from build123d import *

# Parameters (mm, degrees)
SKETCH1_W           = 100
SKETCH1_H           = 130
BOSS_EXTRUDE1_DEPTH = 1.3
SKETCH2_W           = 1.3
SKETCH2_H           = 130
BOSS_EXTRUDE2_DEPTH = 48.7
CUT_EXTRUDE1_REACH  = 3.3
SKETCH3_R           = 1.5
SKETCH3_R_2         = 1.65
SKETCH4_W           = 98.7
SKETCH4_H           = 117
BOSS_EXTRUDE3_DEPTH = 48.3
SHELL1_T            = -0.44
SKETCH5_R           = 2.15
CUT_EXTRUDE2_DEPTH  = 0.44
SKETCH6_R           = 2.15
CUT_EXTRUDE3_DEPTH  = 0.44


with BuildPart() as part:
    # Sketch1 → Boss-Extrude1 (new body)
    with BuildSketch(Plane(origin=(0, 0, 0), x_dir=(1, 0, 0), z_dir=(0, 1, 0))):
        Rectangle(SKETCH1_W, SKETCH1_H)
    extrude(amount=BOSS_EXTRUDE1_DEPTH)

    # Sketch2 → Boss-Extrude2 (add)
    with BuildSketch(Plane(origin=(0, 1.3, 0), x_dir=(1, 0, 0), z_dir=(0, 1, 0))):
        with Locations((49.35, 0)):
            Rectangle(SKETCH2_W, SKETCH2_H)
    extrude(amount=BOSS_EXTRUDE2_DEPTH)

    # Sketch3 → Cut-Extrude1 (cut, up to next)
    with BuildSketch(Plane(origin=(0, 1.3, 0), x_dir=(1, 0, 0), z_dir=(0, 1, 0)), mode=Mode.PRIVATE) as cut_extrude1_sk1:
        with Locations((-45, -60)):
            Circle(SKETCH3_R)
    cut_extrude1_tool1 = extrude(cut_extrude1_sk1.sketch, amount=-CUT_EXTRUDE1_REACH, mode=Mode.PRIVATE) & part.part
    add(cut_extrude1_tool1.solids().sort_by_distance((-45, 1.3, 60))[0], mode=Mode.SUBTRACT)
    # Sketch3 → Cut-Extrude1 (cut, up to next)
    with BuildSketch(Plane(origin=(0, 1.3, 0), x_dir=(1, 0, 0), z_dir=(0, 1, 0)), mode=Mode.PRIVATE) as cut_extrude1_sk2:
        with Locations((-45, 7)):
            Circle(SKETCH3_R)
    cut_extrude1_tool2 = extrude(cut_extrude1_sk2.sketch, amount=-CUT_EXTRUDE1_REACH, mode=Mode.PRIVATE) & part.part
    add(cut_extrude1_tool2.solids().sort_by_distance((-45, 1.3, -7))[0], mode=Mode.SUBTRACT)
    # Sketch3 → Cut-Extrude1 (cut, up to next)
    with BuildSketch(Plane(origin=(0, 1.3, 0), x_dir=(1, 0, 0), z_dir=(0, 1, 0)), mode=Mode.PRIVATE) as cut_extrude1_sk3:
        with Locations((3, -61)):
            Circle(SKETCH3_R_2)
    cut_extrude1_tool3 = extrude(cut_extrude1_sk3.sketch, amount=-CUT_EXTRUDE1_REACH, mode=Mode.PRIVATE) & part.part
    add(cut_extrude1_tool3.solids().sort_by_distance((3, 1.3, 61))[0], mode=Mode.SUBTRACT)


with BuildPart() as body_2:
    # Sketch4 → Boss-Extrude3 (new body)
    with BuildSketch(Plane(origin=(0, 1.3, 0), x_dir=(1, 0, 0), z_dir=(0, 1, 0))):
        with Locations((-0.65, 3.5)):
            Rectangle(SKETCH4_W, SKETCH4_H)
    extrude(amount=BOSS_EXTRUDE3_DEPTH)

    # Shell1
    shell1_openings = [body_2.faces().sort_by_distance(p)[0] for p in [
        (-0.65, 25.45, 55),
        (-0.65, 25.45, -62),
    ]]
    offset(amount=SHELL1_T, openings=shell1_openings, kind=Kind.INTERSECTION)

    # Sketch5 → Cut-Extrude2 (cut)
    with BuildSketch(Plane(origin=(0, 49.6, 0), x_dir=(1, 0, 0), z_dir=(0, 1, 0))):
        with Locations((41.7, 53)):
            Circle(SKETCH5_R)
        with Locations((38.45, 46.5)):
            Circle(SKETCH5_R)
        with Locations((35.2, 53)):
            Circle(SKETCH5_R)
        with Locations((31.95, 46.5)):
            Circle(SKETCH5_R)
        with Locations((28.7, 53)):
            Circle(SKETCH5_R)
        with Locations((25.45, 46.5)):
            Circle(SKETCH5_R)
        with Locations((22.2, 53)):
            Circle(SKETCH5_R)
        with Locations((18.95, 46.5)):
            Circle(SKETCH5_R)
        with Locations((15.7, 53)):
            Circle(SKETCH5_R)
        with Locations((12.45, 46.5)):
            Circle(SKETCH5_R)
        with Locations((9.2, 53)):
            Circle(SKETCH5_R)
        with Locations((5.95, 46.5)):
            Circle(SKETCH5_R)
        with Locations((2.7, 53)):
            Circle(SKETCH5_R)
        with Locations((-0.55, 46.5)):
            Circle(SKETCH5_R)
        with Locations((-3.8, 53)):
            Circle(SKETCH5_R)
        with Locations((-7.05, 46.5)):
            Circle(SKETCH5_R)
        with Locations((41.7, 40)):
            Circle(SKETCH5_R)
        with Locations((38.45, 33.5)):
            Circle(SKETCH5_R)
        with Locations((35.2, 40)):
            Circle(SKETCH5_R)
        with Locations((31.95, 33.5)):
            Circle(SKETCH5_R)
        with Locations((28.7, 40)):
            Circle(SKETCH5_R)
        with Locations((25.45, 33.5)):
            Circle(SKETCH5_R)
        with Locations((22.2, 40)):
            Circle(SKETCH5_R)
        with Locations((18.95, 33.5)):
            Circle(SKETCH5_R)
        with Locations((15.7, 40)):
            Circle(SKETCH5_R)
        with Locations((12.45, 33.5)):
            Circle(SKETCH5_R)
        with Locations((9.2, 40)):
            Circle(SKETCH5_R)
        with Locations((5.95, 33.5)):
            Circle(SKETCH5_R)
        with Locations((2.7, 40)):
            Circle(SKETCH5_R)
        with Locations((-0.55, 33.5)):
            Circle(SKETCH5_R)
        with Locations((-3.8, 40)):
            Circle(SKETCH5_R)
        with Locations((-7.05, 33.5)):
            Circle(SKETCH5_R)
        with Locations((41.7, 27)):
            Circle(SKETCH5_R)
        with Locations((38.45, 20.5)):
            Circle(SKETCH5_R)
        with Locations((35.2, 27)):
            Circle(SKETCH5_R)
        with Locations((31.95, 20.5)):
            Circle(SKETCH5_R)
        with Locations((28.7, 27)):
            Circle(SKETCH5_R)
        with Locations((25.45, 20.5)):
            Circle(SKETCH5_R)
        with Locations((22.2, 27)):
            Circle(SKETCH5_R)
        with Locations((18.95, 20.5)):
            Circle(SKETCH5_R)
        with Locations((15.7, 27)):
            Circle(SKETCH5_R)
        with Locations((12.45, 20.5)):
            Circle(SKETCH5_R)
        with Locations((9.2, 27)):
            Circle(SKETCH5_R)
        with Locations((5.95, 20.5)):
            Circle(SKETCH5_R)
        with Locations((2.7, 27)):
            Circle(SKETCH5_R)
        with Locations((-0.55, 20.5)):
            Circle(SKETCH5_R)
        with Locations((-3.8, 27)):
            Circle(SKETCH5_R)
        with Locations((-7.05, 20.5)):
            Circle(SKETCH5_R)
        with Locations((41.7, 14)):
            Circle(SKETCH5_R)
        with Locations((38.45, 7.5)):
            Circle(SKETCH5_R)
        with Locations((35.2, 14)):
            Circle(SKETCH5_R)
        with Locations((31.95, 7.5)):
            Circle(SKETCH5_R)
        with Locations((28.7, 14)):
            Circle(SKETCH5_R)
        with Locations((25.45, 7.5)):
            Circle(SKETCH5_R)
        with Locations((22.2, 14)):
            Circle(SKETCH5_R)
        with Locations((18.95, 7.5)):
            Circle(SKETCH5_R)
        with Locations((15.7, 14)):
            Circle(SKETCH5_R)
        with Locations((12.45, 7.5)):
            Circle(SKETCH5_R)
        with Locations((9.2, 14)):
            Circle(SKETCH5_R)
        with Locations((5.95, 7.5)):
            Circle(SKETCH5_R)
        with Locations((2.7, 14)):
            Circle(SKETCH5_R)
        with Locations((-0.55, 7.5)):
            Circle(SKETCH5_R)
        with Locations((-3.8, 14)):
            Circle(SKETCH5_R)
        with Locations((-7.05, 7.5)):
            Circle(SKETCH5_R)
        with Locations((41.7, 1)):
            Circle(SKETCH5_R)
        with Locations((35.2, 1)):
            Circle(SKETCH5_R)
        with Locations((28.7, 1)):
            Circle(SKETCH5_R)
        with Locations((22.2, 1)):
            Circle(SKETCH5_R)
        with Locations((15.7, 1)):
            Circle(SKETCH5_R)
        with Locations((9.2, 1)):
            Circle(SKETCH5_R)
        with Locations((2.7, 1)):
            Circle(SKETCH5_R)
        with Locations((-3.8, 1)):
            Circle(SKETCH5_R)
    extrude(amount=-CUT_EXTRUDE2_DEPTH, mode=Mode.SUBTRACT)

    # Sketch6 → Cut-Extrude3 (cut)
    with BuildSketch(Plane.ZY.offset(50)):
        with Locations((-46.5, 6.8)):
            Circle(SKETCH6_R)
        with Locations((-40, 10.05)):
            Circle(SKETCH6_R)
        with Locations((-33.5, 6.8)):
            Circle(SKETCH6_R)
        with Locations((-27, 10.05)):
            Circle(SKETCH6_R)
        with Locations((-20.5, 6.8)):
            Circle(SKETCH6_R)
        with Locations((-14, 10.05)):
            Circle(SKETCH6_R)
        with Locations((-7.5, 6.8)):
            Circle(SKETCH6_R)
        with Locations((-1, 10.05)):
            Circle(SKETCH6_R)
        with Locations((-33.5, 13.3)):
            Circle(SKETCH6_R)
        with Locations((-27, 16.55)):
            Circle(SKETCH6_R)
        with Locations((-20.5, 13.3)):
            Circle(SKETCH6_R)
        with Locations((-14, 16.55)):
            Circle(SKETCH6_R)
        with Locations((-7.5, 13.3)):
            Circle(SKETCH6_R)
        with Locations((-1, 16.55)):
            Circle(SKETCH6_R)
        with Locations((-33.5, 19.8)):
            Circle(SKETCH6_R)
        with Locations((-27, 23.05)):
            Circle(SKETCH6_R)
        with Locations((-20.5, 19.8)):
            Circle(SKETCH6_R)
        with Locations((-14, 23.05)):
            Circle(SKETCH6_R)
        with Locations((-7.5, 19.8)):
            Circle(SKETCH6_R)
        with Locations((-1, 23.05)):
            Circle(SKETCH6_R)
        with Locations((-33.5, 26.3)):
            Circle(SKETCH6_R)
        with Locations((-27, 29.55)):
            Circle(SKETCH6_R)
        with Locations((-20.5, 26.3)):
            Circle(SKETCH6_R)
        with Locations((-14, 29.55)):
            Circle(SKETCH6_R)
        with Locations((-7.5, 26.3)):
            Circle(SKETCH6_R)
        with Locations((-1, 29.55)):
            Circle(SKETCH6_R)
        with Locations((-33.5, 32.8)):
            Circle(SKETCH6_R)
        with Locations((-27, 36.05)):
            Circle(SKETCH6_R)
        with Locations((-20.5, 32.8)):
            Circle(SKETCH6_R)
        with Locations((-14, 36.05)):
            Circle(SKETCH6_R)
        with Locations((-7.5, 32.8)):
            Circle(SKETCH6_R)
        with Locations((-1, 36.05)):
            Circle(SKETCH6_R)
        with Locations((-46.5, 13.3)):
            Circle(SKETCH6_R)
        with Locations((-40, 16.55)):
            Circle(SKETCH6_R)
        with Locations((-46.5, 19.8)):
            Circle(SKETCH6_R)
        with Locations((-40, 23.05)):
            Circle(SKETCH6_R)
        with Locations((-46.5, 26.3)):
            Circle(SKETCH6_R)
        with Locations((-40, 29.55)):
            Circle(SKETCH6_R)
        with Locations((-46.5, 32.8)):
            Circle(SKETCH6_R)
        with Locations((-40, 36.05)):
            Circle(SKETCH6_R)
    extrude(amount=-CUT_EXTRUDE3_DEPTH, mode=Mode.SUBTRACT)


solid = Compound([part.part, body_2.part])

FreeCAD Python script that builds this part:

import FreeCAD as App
import Part
import Sketcher
from FreeCAD import Vector
Q = App.Units.Quantity


def faces_at(feature, points):
    """Names of the faces that lie closest to the given points."""
    faces = feature.Shape.Faces
    near = lambda p: min(range(len(faces)), key=lambda i: faces[i].distToShape(Part.Vertex(*p))[0])
    return sorted({f"Face{near(p) + 1}" for p in points})


def add_polygon(sketch, points):
    """Adds a closed chain of lines whose ends are joined by coincident constraints."""
    first, n = sketch.GeometryCount, len(points)
    for a, b in zip(points, points[1:] + points[:1]):
        sketch.addGeometry(Part.LineSegment(App.Vector(*a, 0), App.Vector(*b, 0)), False)
    for i in range(n):
        sketch.addConstraint(Sketcher.Constraint("Coincident", first + i, 2, first + (i + 1) % n, 1))

doc = App.newDocument("Part")
body = doc.addObject("PartDesign::Body", "Body")

# Sketch on XZ plane
sketch1 = body.newObject("Sketcher::SketchObject", "Sketch")
sketch1.AttachmentSupport = (doc.getObject("XZ_Plane"), [""])
sketch1.MapMode = "FlatFace"
add_polygon(sketch1, [(-50, -65), (-50, 65), (50, 65), (50, -65)])  # lines 0-3
sketch1.addConstraint(Sketcher.Constraint("Vertical", 0))
sketch1.addConstraint(Sketcher.Constraint("Horizontal", 1))
sketch1.addConstraint(Sketcher.Constraint("Vertical", 2))
sketch1.addConstraint(Sketcher.Constraint("Horizontal", 3))
sketch1.addConstraint(Sketcher.Constraint("Symmetric", 0, 2, 2, 2, -1, 1))
sketch1.addConstraint(Sketcher.Constraint("DistanceX", 1, 1, 1, 2, Q("100 mm")))
sketch1.addConstraint(Sketcher.Constraint("DistanceY", 0, 1, 0, 2, Q("130 mm")))
pad1 = body.newObject("PartDesign::Pad", "Pad")
pad1.Profile = sketch1
pad1.Length = 1.3
pad1.Reversed = True

# Sketch on XZ plane
sketch2 = body.newObject("Sketcher::SketchObject", "Sketch001")
sketch2.AttachmentSupport = (doc.getObject("XZ_Plane"), [""])
sketch2.MapMode = "FlatFace"
sketch2.AttachmentOffset = App.Placement(Vector(0, 0, -1.3), App.Rotation())
add_polygon(sketch2, [(48.7, -65), (48.7, 65), (50, 65), (50, -65)])  # lines 0-3
sketch2.addConstraint(Sketcher.Constraint("Vertical", 0))
sketch2.addConstraint(Sketcher.Constraint("Horizontal", 1))
sketch2.addConstraint(Sketcher.Constraint("Vertical", 2))
sketch2.addConstraint(Sketcher.Constraint("Horizontal", 3))
sketch2.addConstraint(Sketcher.Constraint("DistanceY", 0, 1, 0, 2, Q("130 mm")))
sketch2.addConstraint(Sketcher.Constraint("DistanceX", 1, 1, 1, 2, Q("1.3 mm")))
sketch2.addConstraint(Sketcher.Constraint("DistanceY", -1, 1, 0, 2, Q("65 mm")))
sketch2.addConstraint(Sketcher.Constraint("DistanceX", -1, 1, 1, 2, Q("50 mm")))
pad2 = body.newObject("PartDesign::Pad", "Pad001")
pad2.Profile = sketch2
pad2.Length = 48.7
pad2.Reversed = True

# Sketch on XZ plane
sketch3 = body.newObject("Sketcher::SketchObject", "Sketch002")
sketch3.AttachmentSupport = (doc.getObject("XZ_Plane"), [""])
sketch3.MapMode = "FlatFace"
sketch3.AttachmentOffset = App.Placement(Vector(0, 0, -1.3), App.Rotation())
sketch3.addGeometry(Part.Circle(Vector(-45, 60, 0), Vector(0, 0, 1), 1.5), False)
sketch3.addConstraint(Sketcher.Constraint("Diameter", 0, Q("3 mm")))
sketch3.addConstraint(Sketcher.Constraint("DistanceX", 0, 3, -1, 1, Q("45 mm")))
sketch3.addConstraint(Sketcher.Constraint("DistanceY", -1, 1, 0, 3, Q("60 mm")))
pocket1 = body.newObject("PartDesign::Pocket", "Pocket")
pocket1.Profile = sketch3
pocket1.Type = "UpToFirst"
pocket1.Reversed = True

# Sketch on XZ plane
sketch4 = body.newObject("Sketcher::SketchObject", "Sketch003")
sketch4.AttachmentSupport = (doc.getObject("XZ_Plane"), [""])
sketch4.MapMode = "FlatFace"
sketch4.AttachmentOffset = App.Placement(Vector(0, 0, -1.3), App.Rotation())
sketch4.addGeometry(Part.Circle(Vector(-45, -7, 0), Vector(0, 0, 1), 1.5), False)
sketch4.addConstraint(Sketcher.Constraint("Diameter", 0, Q("3 mm")))
sketch4.addConstraint(Sketcher.Constraint("DistanceX", 0, 3, -1, 1, Q("45 mm")))
sketch4.addConstraint(Sketcher.Constraint("DistanceY", 0, 3, -1, 1, Q("7 mm")))
pocket2 = body.newObject("PartDesign::Pocket", "Pocket001")
pocket2.Profile = sketch4
pocket2.Type = "UpToFirst"
pocket2.Reversed = True

# Sketch on XZ plane
sketch5 = body.newObject("Sketcher::SketchObject", "Sketch004")
sketch5.AttachmentSupport = (doc.getObject("XZ_Plane"), [""])
sketch5.MapMode = "FlatFace"
sketch5.AttachmentOffset = App.Placement(Vector(0, 0, -1.3), App.Rotation())
sketch5.addGeometry(Part.Circle(Vector(3, 61, 0), Vector(0, 0, 1), 1.65), False)
sketch5.addConstraint(Sketcher.Constraint("Diameter", 0, Q("3.3 mm")))
sketch5.addConstraint(Sketcher.Constraint("DistanceX", -1, 1, 0, 3, Q("3 mm")))
sketch5.addConstraint(Sketcher.Constraint("DistanceY", -1, 1, 0, 3, Q("61 mm")))
pocket3 = body.newObject("PartDesign::Pocket", "Pocket002")
pocket3.Profile = sketch5
pocket3.Type = "UpToFirst"
pocket3.Reversed = True
body2 = doc.addObject("PartDesign::Body", "Body001")

# Sketch on XZ plane
sketch6 = body2.newObject("Sketcher::SketchObject", "Sketch005")
sketch6.AttachmentSupport = (doc.getObject("XZ_Plane001"), [""])
sketch6.MapMode = "FlatFace"
sketch6.AttachmentOffset = App.Placement(Vector(0, 0, -1.3), App.Rotation())
add_polygon(sketch6, [(-50, -62), (-50, 55), (48.7, 55), (48.7, -62)])  # lines 0-3
sketch6.addConstraint(Sketcher.Constraint("Vertical", 0))
sketch6.addConstraint(Sketcher.Constraint("Horizontal", 1))
sketch6.addConstraint(Sketcher.Constraint("Vertical", 2))
sketch6.addConstraint(Sketcher.Constraint("Horizontal", 3))
sketch6.addConstraint(Sketcher.Constraint("DistanceY", 0, 1, 0, 2, Q("117 mm")))
sketch6.addConstraint(Sketcher.Constraint("DistanceX", 1, 1, 1, 2, Q("98.7 mm")))
sketch6.addConstraint(Sketcher.Constraint("DistanceX", 0, 2, -1, 1, Q("50 mm")))
sketch6.addConstraint(Sketcher.Constraint("DistanceY", -1, 1, 0, 2, Q("55 mm")))
pad3 = body2.newObject("PartDesign::Pad", "Pad002")
pad3.Profile = sketch6
pad3.Length = 48.3
pad3.Reversed = True
doc.recompute()

thickness = body2.newObject("PartDesign::Thickness", "Thickness")
thickness.Base = (pad3, faces_at(pad3, [(-0.65, 25.45, 55), (-0.65, 25.45, -62)]))
thickness.Value = 0.44
thickness.Reversed = True
thickness.Join = "Intersection"

# Sketch on XZ plane
sketch7 = body2.newObject("Sketcher::SketchObject", "Sketch006")
sketch7.AttachmentSupport = (doc.getObject("XZ_Plane001"), [""])
sketch7.MapMode = "FlatFace"
sketch7.AttachmentOffset = App.Placement(Vector(0, 0, -49.6), App.Rotation())
sketch7.addGeometry(Part.Circle(Vector(41.7, -53, 0), Vector(0, 0, 1), 2.15), False)
sketch7.addGeometry(Part.Circle(Vector(38.45, -46.5, 0), Vector(0, 0, 1), 2.15), False)
sketch7.addGeometry(Part.Circle(Vector(35.2, -53, 0), Vector(0, 0, 1), 2.15), False)
sketch7.addGeometry(Part.Circle(Vector(31.95, -46.5, 0), Vector(0, 0, 1), 2.15), False)
sketch7.addGeometry(Part.Circle(Vector(28.7, -53, 0), Vector(0, 0, 1), 2.15), False)
sketch7.addGeometry(Part.Circle(Vector(25.45, -46.5, 0), Vector(0, 0, 1), 2.15), False)
sketch7.addGeometry(Part.Circle(Vector(22.2, -53, 0), Vector(0, 0, 1), 2.15), False)
sketch7.addGeometry(Part.Circle(Vector(18.95, -46.5, 0), Vector(0, 0, 1), 2.15), False)
sketch7.addGeometry(Part.Circle(Vector(15.7, -53, 0), Vector(0, 0, 1), 2.15), False)
sketch7.addGeometry(Part.Circle(Vector(12.45, -46.5, 0), Vector(0, 0, 1), 2.15), False)
sketch7.addGeometry(Part.Circle(Vector(9.2, -53, 0), Vector(0, 0, 1), 2.15), False)
sketch7.addGeometry(Part.Circle(Vector(5.95, -46.5, 0), Vector(0, 0, 1), 2.15), False)
sketch7.addGeometry(Part.Circle(Vector(2.7, -53, 0), Vector(0, 0, 1), 2.15), False)
sketch7.addGeometry(Part.Circle(Vector(-0.55, -46.5, 0), Vector(0, 0, 1), 2.15), False)
sketch7.addGeometry(Part.Circle(Vector(-3.8, -53, 0), Vector(0, 0, 1), 2.15), False)
sketch7.addGeometry(Part.Circle(Vector(-7.05, -46.5, 0), Vector(0, 0, 1), 2.15), False)
sketch7.addGeometry(Part.Circle(Vector(41.7, -40, 0), Vector(0, 0, 1), 2.15), False)
sketch7.addGeometry(Part.Circle(Vector(38.45, -33.5, 0), Vector(0, 0, 1), 2.15), False)
sketch7.addGeometry(Part.Circle(Vector(35.2, -40, 0), Vector(0, 0, 1), 2.15), False)
sketch7.addGeometry(Part.Circle(Vector(31.95, -33.5, 0), Vector(0, 0, 1), 2.15), False)
sketch7.addGeometry(Part.Circle(Vector(28.7, -40, 0), Vector(0, 0, 1), 2.15), False)
sketch7.addGeometry(Part.Circle(Vector(25.45, -33.5, 0), Vector(0, 0, 1), 2.15), False)
sketch7.addGeometry(Part.Circle(Vector(22.2, -40, 0), Vector(0, 0, 1), 2.15), False)
sketch7.addGeometry(Part.Circle(Vector(18.95, -33.5, 0), Vector(0, 0, 1), 2.15), False)
sketch7.addGeometry(Part.Circle(Vector(15.7, -40, 0), Vector(0, 0, 1), 2.15), False)
sketch7.addGeometry(Part.Circle(Vector(12.45, -33.5, 0), Vector(0, 0, 1), 2.15), False)
sketch7.addGeometry(Part.Circle(Vector(9.2, -40, 0), Vector(0, 0, 1), 2.15), False)
sketch7.addGeometry(Part.Circle(Vector(5.95, -33.5, 0), Vector(0, 0, 1), 2.15), False)
sketch7.addGeometry(Part.Circle(Vector(2.7, -40, 0), Vector(0, 0, 1), 2.15), False)
sketch7.addGeometry(Part.Circle(Vector(-0.55, -33.5, 0), Vector(0, 0, 1), 2.15), False)
sketch7.addGeometry(Part.Circle(Vector(-3.8, -40, 0), Vector(0, 0, 1), 2.15), False)
sketch7.addGeometry(Part.Circle(Vector(-7.05, -33.5, 0), Vector(0, 0, 1), 2.15), False)
sketch7.addGeometry(Part.Circle(Vector(41.7, -27, 0), Vector(0, 0, 1), 2.15), False)
sketch7.addGeometry(Part.Circle(Vector(38.45, -20.5, 0), Vector(0, 0, 1), 2.15), False)
sketch7.addGeometry(Part.Circle(Vector(35.2, -27, 0), Vector(0, 0, 1), 2.15), False)
sketch7.addGeometry(Part.Circle(Vector(31.95, -20.5, 0), Vector(0, 0, 1), 2.15), False)
sketch7.addGeometry(Part.Circle(Vector(28.7, -27, 0), Vector(0, 0, 1), 2.15), False)
sketch7.addGeometry(Part.Circle(Vector(25.45, -20.5, 0), Vector(0, 0, 1), 2.15), False)
sketch7.addGeometry(Part.Circle(Vector(22.2, -27, 0), Vector(0, 0, 1), 2.15), False)
sketch7.addGeometry(Part.Circle(Vector(18.95, -20.5, 0), Vector(0, 0, 1), 2.15), False)
sketch7.addGeometry(Part.Circle(Vector(15.7, -27, 0), Vector(0, 0, 1), 2.15), False)
sketch7.addGeometry(Part.Circle(Vector(12.45, -20.5, 0), Vector(0, 0, 1), 2.15), False)
sketch7.addGeometry(Part.Circle(Vector(9.2, -27, 0), Vector(0, 0, 1), 2.15), False)
sketch7.addGeometry(Part.Circle(Vector(5.95, -20.5, 0), Vector(0, 0, 1), 2.15), False)
sketch7.addGeometry(Part.Circle(Vector(2.7, -27, 0), Vector(0, 0, 1), 2.15), False)
sketch7.addGeometry(Part.Circle(Vector(-0.55, -20.5, 0), Vector(0, 0, 1), 2.15), False)
sketch7.addGeometry(Part.Circle(Vector(-3.8, -27, 0), Vector(0, 0, 1), 2.15), False)
sketch7.addGeometry(Part.Circle(Vector(-7.05, -20.5, 0), Vector(0, 0, 1), 2.15), False)
sketch7.addGeometry(Part.Circle(Vector(41.7, -14, 0), Vector(0, 0, 1), 2.15), False)
sketch7.addGeometry(Part.Circle(Vector(38.45, -7.5, 0), Vector(0, 0, 1), 2.15), False)
sketch7.addGeometry(Part.Circle(Vector(35.2, -14, 0), Vector(0, 0, 1), 2.15), False)
sketch7.addGeometry(Part.Circle(Vector(31.95, -7.5, 0), Vector(0, 0, 1), 2.15), False)
sketch7.addGeometry(Part.Circle(Vector(28.7, -14, 0), Vector(0, 0, 1), 2.15), False)
sketch7.addGeometry(Part.Circle(Vector(25.45, -7.5, 0), Vector(0, 0, 1), 2.15), False)
sketch7.addGeometry(Part.Circle(Vector(22.2, -14, 0), Vector(0, 0, 1), 2.15), False)
sketch7.addGeometry(Part.Circle(Vector(18.95, -7.5, 0), Vector(0, 0, 1), 2.15), False)
sketch7.addGeometry(Part.Circle(Vector(15.7, -14, 0), Vector(0, 0, 1), 2.15), False)
sketch7.addGeometry(Part.Circle(Vector(12.45, -7.5, 0), Vector(0, 0, 1), 2.15), False)
sketch7.addGeometry(Part.Circle(Vector(9.2, -14, 0), Vector(0, 0, 1), 2.15), False)
sketch7.addGeometry(Part.Circle(Vector(5.95, -7.5, 0), Vector(0, 0, 1), 2.15), False)
sketch7.addGeometry(Part.Circle(Vector(2.7, -14, 0), Vector(0, 0, 1), 2.15), False)
sketch7.addGeometry(Part.Circle(Vector(-0.55, -7.5, 0), Vector(0, 0, 1), 2.15), False)
sketch7.addGeometry(Part.Circle(Vector(-3.8, -14, 0), Vector(0, 0, 1), 2.15), False)
sketch7.addGeometry(Part.Circle(Vector(-7.05, -7.5, 0), Vector(0, 0, 1), 2.15), False)
sketch7.addGeometry(Part.Circle(Vector(41.7, -1, 0), Vector(0, 0, 1), 2.15), False)
sketch7.addGeometry(Part.Circle(Vector(35.2, -1, 0), Vector(0, 0, 1), 2.15), False)
sketch7.addGeometry(Part.Circle(Vector(28.7, -1, 0), Vector(0, 0, 1), 2.15), False)
sketch7.addGeometry(Part.Circle(Vector(22.2, -1, 0), Vector(0, 0, 1), 2.15), False)
sketch7.addGeometry(Part.Circle(Vector(15.7, -1, 0), Vector(0, 0, 1), 2.15), False)
sketch7.addGeometry(Part.Circle(Vector(9.2, -1, 0), Vector(0, 0, 1), 2.15), False)
sketch7.addGeometry(Part.Circle(Vector(2.7, -1, 0), Vector(0, 0, 1), 2.15), False)
sketch7.addGeometry(Part.Circle(Vector(-3.8, -1, 0), Vector(0, 0, 1), 2.15), False)
sketch7.addConstraint(Sketcher.Constraint("Equal", 0, 1))
sketch7.addConstraint(Sketcher.Constraint("Equal", 1, 2))
sketch7.addConstraint(Sketcher.Constraint("Equal", 2, 3))
sketch7.addConstraint(Sketcher.Constraint("Equal", 3, 4))
sketch7.addConstraint(Sketcher.Constraint("Equal", 4, 5))
sketch7.addConstraint(Sketcher.Constraint("Equal", 5, 6))
sketch7.addConstraint(Sketcher.Constraint("Equal", 6, 7))
sketch7.addConstraint(Sketcher.Constraint("Equal", 7, 8))
sketch7.addConstraint(Sketcher.Constraint("Equal", 8, 9))
sketch7.addConstraint(Sketcher.Constraint("Equal", 9, 10))
sketch7.addConstraint(Sketcher.Constraint("Equal", 10, 11))
sketch7.addConstraint(Sketcher.Constraint("Equal", 11, 12))
sketch7.addConstraint(Sketcher.Constraint("Equal", 12, 13))
sketch7.addConstraint(Sketcher.Constraint("Equal", 13, 14))
sketch7.addConstraint(Sketcher.Constraint("Equal", 14, 15))
sketch7.addConstraint(Sketcher.Constraint("Equal", 15, 16))
sketch7.addConstraint(Sketcher.Constraint("Equal", 16, 17))
sketch7.addConstraint(Sketcher.Constraint("Equal", 17, 18))
sketch7.addConstraint(Sketcher.Constraint("Equal", 18, 19))
sketch7.addConstraint(Sketcher.Constraint("Equal", 19, 20))
sketch7.addConstraint(Sketcher.Constraint("Equal", 20, 21))
sketch7.addConstraint(Sketcher.Constraint("Equal", 21, 22))
sketch7.addConstraint(Sketcher.Constraint("Equal", 22, 23))
sketch7.addConstraint(Sketcher.Constraint("Equal", 23, 24))
sketch7.addConstraint(Sketcher.Constraint("Equal", 24, 25))
sketch7.addConstraint(Sketcher.Constraint("Equal", 25, 26))
sketch7.addConstraint(Sketcher.Constraint("Equal", 26, 27))
sketch7.addConstraint(Sketcher.Constraint("Equal", 27, 28))
sketch7.addConstraint(Sketcher.Constraint("Equal", 28, 29))
sketch7.addConstraint(Sketcher.Constraint("Equal", 29, 30))
sketch7.addConstraint(Sketcher.Constraint("Equal", 30, 31))
sketch7.addConstraint(Sketcher.Constraint("Equal", 31, 32))
sketch7.addConstraint(Sketcher.Constraint("Equal", 32, 33))
sketch7.addConstraint(Sketcher.Constraint("Equal", 33, 34))
sketch7.addConstraint(Sketcher.Constraint("Equal", 34, 35))
sketch7.addConstraint(Sketcher.Constraint("Equal", 35, 36))
sketch7.addConstraint(Sketcher.Constraint("Equal", 36, 37))
sketch7.addConstraint(Sketcher.Constraint("Equal", 37, 38))
sketch7.addConstraint(Sketcher.Constraint("Equal", 38, 39))
sketch7.addConstraint(Sketcher.Constraint("Equal", 39, 40))
sketch7.addConstraint(Sketcher.Constraint("Equal", 40, 41))
sketch7.addConstraint(Sketcher.Constraint("Equal", 41, 42))
sketch7.addConstraint(Sketcher.Constraint("Equal", 42, 43))
sketch7.addConstraint(Sketcher.Constraint("Equal", 43, 44))
sketch7.addConstraint(Sketcher.Constraint("Equal", 44, 45))
sketch7.addConstraint(Sketcher.Constraint("Equal", 45, 46))
sketch7.addConstraint(Sketcher.Constraint("Equal", 46, 47))
sketch7.addConstraint(Sketcher.Constraint("Equal", 47, 48))
sketch7.addConstraint(Sketcher.Constraint("Equal", 48, 49))
sketch7.addConstraint(Sketcher.Constraint("Equal", 49, 50))
sketch7.addConstraint(Sketcher.Constraint("Equal", 50, 51))
sketch7.addConstraint(Sketcher.Constraint("Equal", 51, 52))
sketch7.addConstraint(Sketcher.Constraint("Equal", 52, 53))
sketch7.addConstraint(Sketcher.Constraint("Equal", 53, 54))
sketch7.addConstraint(Sketcher.Constraint("Equal", 54, 55))
sketch7.addConstraint(Sketcher.Constraint("Equal", 55, 56))
sketch7.addConstraint(Sketcher.Constraint("Equal", 56, 57))
sketch7.addConstraint(Sketcher.Constraint("Equal", 57, 58))
sketch7.addConstraint(Sketcher.Constraint("Equal", 58, 59))
sketch7.addConstraint(Sketcher.Constraint("Equal", 59, 60))
sketch7.addConstraint(Sketcher.Constraint("Equal", 60, 61))
sketch7.addConstraint(Sketcher.Constraint("Equal", 61, 62))
sketch7.addConstraint(Sketcher.Constraint("Equal", 62, 63))
sketch7.addConstraint(Sketcher.Constraint("Equal", 63, 64))
sketch7.addConstraint(Sketcher.Constraint("Equal", 64, 65))
sketch7.addConstraint(Sketcher.Constraint("Equal", 65, 66))
sketch7.addConstraint(Sketcher.Constraint("Equal", 66, 67))
sketch7.addConstraint(Sketcher.Constraint("Equal", 67, 68))
sketch7.addConstraint(Sketcher.Constraint("Equal", 68, 69))
sketch7.addConstraint(Sketcher.Constraint("Equal", 69, 70))
sketch7.addConstraint(Sketcher.Constraint("Equal", 70, 71))
sketch7.addConstraint(Sketcher.Constraint("Horizontal", 0, 3, 2, 3))
sketch7.addConstraint(Sketcher.Constraint("Horizontal", 1, 3, 3, 3))
sketch7.addConstraint(Sketcher.Constraint("Horizontal", 2, 3, 4, 3))
sketch7.addConstraint(Sketcher.Constraint("Horizontal", 3, 3, 5, 3))
sketch7.addConstraint(Sketcher.Constraint("Horizontal", 4, 3, 6, 3))
sketch7.addConstraint(Sketcher.Constraint("Horizontal", 5, 3, 7, 3))
sketch7.addConstraint(Sketcher.Constraint("Horizontal", 6, 3, 8, 3))
sketch7.addConstraint(Sketcher.Constraint("Horizontal", 7, 3, 9, 3))
sketch7.addConstraint(Sketcher.Constraint("Horizontal", 8, 3, 10, 3))
sketch7.addConstraint(Sketcher.Constraint("Horizontal", 9, 3, 11, 3))
sketch7.addConstraint(Sketcher.Constraint("Horizontal", 10, 3, 12, 3))
sketch7.addConstraint(Sketcher.Constraint("Horizontal", 11, 3, 13, 3))
sketch7.addConstraint(Sketcher.Constraint("Horizontal", 12, 3, 14, 3))
sketch7.addConstraint(Sketcher.Constraint("Horizontal", 13, 3, 15, 3))
sketch7.addConstraint(Sketcher.Constraint("Horizontal", 16, 3, 18, 3))
sketch7.addConstraint(Sketcher.Constraint("Horizontal", 17, 3, 19, 3))
sketch7.addConstraint(Sketcher.Constraint("Horizontal", 18, 3, 20, 3))
sketch7.addConstraint(Sketcher.Constraint("Horizontal", 19, 3, 21, 3))
sketch7.addConstraint(Sketcher.Constraint("Horizontal", 20, 3, 22, 3))
sketch7.addConstraint(Sketcher.Constraint("Horizontal", 21, 3, 23, 3))
sketch7.addConstraint(Sketcher.Constraint("Horizontal", 22, 3, 24, 3))
sketch7.addConstraint(Sketcher.Constraint("Horizontal", 23, 3, 25, 3))
sketch7.addConstraint(Sketcher.Constraint("Horizontal", 24, 3, 26, 3))
sketch7.addConstraint(Sketcher.Constraint("Horizontal", 25, 3, 27, 3))
sketch7.addConstraint(Sketcher.Constraint("Horizontal", 26, 3, 28, 3))
sketch7.addConstraint(Sketcher.Constraint("Horizontal", 27, 3, 29, 3))
sketch7.addConstraint(Sketcher.Constraint("Horizontal", 28, 3, 30, 3))
sketch7.addConstraint(Sketcher.Constraint("Horizontal", 29, 3, 31, 3))
sketch7.addConstraint(Sketcher.Constraint("Horizontal", 32, 3, 34, 3))
sketch7.addConstraint(Sketcher.Constraint("Horizontal", 33, 3, 35, 3))
sketch7.addConstraint(Sketcher.Constraint("Horizontal", 34, 3, 36, 3))
sketch7.addConstraint(Sketcher.Constraint("Horizontal", 35, 3, 37, 3))
sketch7.addConstraint(Sketcher.Constraint("Horizontal", 36, 3, 38, 3))
sketch7.addConstraint(Sketcher.Constraint("Horizontal", 37, 3, 39, 3))
sketch7.addConstraint(Sketcher.Constraint("Horizontal", 38, 3, 40, 3))
sketch7.addConstraint(Sketcher.Constraint("Horizontal", 39, 3, 41, 3))
sketch7.addConstraint(Sketcher.Constraint("Horizontal", 40, 3, 42, 3))
sketch7.addConstraint(Sketcher.Constraint("Horizontal", 41, 3, 43, 3))
sketch7.addConstraint(Sketcher.Constraint("Horizontal", 42, 3, 44, 3))
sketch7.addConstraint(Sketcher.Constraint("Horizontal", 43, 3, 45, 3))
sketch7.addConstraint(Sketcher.Constraint("Horizontal", 44, 3, 46, 3))
sketch7.addConstraint(Sketcher.Constraint("Horizontal", 45, 3, 47, 3))
sketch7.addConstraint(Sketcher.Constraint("Horizontal", 48, 3, 50, 3))
sketch7.addConstraint(Sketcher.Constraint("Horizontal", 49, 3, 51, 3))
sketch7.addConstraint(Sketcher.Constraint("Horizontal", 50, 3, 52, 3))
sketch7.addConstraint(Sketcher.Constraint("Horizontal", 51, 3, 53, 3))
sketch7.addConstraint(Sketcher.Constraint("Horizontal", 52, 3, 54, 3))
sketch7.addConstraint(Sketcher.Constraint("Horizontal", 53, 3, 55, 3))
sketch7.addConstraint(Sketcher.Constraint("Horizontal", 54, 3, 56, 3))
sketch7.addConstraint(Sketcher.Constraint("Horizontal", 55, 3, 57, 3))
sketch7.addConstraint(Sketcher.Constraint("Horizontal", 56, 3, 58, 3))
sketch7.addConstraint(Sketcher.Constraint("Horizontal", 57, 3, 59, 3))
sketch7.addConstraint(Sketcher.Constraint("Horizontal", 58, 3, 60, 3))
sketch7.addConstraint(Sketcher.Constraint("Horizontal", 59, 3, 61, 3))
sketch7.addConstraint(Sketcher.Constraint("Horizontal", 60, 3, 62, 3))
sketch7.addConstraint(Sketcher.Constraint("Horizontal", 61, 3, 63, 3))
sketch7.addConstraint(Sketcher.Constraint("Horizontal", 64, 3, 65, 3))
sketch7.addConstraint(Sketcher.Constraint("Horizontal", 65, 3, 66, 3))
sketch7.addConstraint(Sketcher.Constraint("Horizontal", 66, 3, 67, 3))
sketch7.addConstraint(Sketcher.Constraint("Horizontal", 67, 3, 68, 3))
sketch7.addConstraint(Sketcher.Constraint("Horizontal", 68, 3, 69, 3))
sketch7.addConstraint(Sketcher.Constraint("Horizontal", 69, 3, 70, 3))
sketch7.addConstraint(Sketcher.Constraint("Horizontal", 70, 3, 71, 3))
sketch7.addConstraint(Sketcher.Constraint("Vertical", 0, 3, 16, 3))
sketch7.addConstraint(Sketcher.Constraint("Vertical", 1, 3, 17, 3))
sketch7.addConstraint(Sketcher.Constraint("Vertical", 2, 3, 18, 3))
sketch7.addConstraint(Sketcher.Constraint("Vertical", 3, 3, 19, 3))
sketch7.addConstraint(Sketcher.Constraint("Vertical", 4, 3, 20, 3))
sketch7.addConstraint(Sketcher.Constraint("Vertical", 5, 3, 21, 3))
sketch7.addConstraint(Sketcher.Constraint("Vertical", 6, 3, 22, 3))
sketch7.addConstraint(Sketcher.Constraint("Vertical", 7, 3, 23, 3))
sketch7.addConstraint(Sketcher.Constraint("Vertical", 8, 3, 24, 3))
sketch7.addConstraint(Sketcher.Constraint("Vertical", 9, 3, 25, 3))
sketch7.addConstraint(Sketcher.Constraint("Vertical", 10, 3, 26, 3))
sketch7.addConstraint(Sketcher.Constraint("Vertical", 11, 3, 27, 3))
sketch7.addConstraint(Sketcher.Constraint("Vertical", 12, 3, 28, 3))
sketch7.addConstraint(Sketcher.Constraint("Vertical", 13, 3, 29, 3))
sketch7.addConstraint(Sketcher.Constraint("Vertical", 14, 3, 30, 3))
sketch7.addConstraint(Sketcher.Constraint("Vertical", 15, 3, 31, 3))
sketch7.addConstraint(Sketcher.Constraint("Vertical", 16, 3, 32, 3))
sketch7.addConstraint(Sketcher.Constraint("Vertical", 17, 3, 33, 3))
sketch7.addConstraint(Sketcher.Constraint("Vertical", 18, 3, 34, 3))
sketch7.addConstraint(Sketcher.Constraint("Vertical", 19, 3, 35, 3))
sketch7.addConstraint(Sketcher.Constraint("Vertical", 20, 3, 36, 3))
sketch7.addConstraint(Sketcher.Constraint("Vertical", 21, 3, 37, 3))
sketch7.addConstraint(Sketcher.Constraint("Vertical", 22, 3, 38, 3))
sketch7.addConstraint(Sketcher.Constraint("Vertical", 23, 3, 39, 3))
sketch7.addConstraint(Sketcher.Constraint("Vertical", 24, 3, 40, 3))
sketch7.addConstraint(Sketcher.Constraint("Vertical", 25, 3, 41, 3))
sketch7.addConstraint(Sketcher.Constraint("Vertical", 26, 3, 42, 3))
sketch7.addConstraint(Sketcher.Constraint("Vertical", 27, 3, 43, 3))
sketch7.addConstraint(Sketcher.Constraint("Vertical", 28, 3, 44, 3))
sketch7.addConstraint(Sketcher.Constraint("Vertical", 29, 3, 45, 3))
sketch7.addConstraint(Sketcher.Constraint("Vertical", 30, 3, 46, 3))
sketch7.addConstraint(Sketcher.Constraint("Vertical", 31, 3, 47, 3))
sketch7.addConstraint(Sketcher.Constraint("Vertical", 32, 3, 48, 3))
sketch7.addConstraint(Sketcher.Constraint("Vertical", 33, 3, 49, 3))
sketch7.addConstraint(Sketcher.Constraint("Vertical", 34, 3, 50, 3))
sketch7.addConstraint(Sketcher.Constraint("Vertical", 35, 3, 51, 3))
sketch7.addConstraint(Sketcher.Constraint("Vertical", 36, 3, 52, 3))
sketch7.addConstraint(Sketcher.Constraint("Vertical", 37, 3, 53, 3))
sketch7.addConstraint(Sketcher.Constraint("Vertical", 38, 3, 54, 3))
sketch7.addConstraint(Sketcher.Constraint("Vertical", 39, 3, 55, 3))
sketch7.addConstraint(Sketcher.Constraint("Vertical", 40, 3, 56, 3))
sketch7.addConstraint(Sketcher.Constraint("Vertical", 41, 3, 57, 3))
sketch7.addConstraint(Sketcher.Constraint("Vertical", 42, 3, 58, 3))
sketch7.addConstraint(Sketcher.Constraint("Vertical", 43, 3, 59, 3))
sketch7.addConstraint(Sketcher.Constraint("Vertical", 44, 3, 60, 3))
sketch7.addConstraint(Sketcher.Constraint("Vertical", 45, 3, 61, 3))
sketch7.addConstraint(Sketcher.Constraint("Vertical", 46, 3, 62, 3))
sketch7.addConstraint(Sketcher.Constraint("Vertical", 47, 3, 63, 3))
sketch7.addConstraint(Sketcher.Constraint("Vertical", 48, 3, 64, 3))
sketch7.addConstraint(Sketcher.Constraint("Vertical", 50, 3, 65, 3))
sketch7.addConstraint(Sketcher.Constraint("Vertical", 52, 3, 66, 3))
sketch7.addConstraint(Sketcher.Constraint("Vertical", 54, 3, 67, 3))
sketch7.addConstraint(Sketcher.Constraint("Vertical", 56, 3, 68, 3))
sketch7.addConstraint(Sketcher.Constraint("Vertical", 58, 3, 69, 3))
sketch7.addConstraint(Sketcher.Constraint("Vertical", 60, 3, 70, 3))
sketch7.addConstraint(Sketcher.Constraint("Vertical", 62, 3, 71, 3))
sketch7.addConstraint(Sketcher.Constraint("Diameter", 0, Q("4.3 mm")))
sketch7.addConstraint(Sketcher.Constraint("DistanceY", 0, 3, -1, 1, Q("53 mm")))
sketch7.addConstraint(Sketcher.Constraint("DistanceY", 16, 3, -1, 1, Q("40 mm")))
sketch7.addConstraint(Sketcher.Constraint("DistanceY", 32, 3, -1, 1, Q("27 mm")))
sketch7.addConstraint(Sketcher.Constraint("DistanceY", 48, 3, -1, 1, Q("14 mm")))
sketch7.addConstraint(Sketcher.Constraint("DistanceY", 64, 3, -1, 1, Q("1 mm")))
sketch7.addConstraint(Sketcher.Constraint("DistanceX", -1, 1, 0, 3, Q("41.7 mm")))
sketch7.addConstraint(Sketcher.Constraint("DistanceY", 1, 3, -1, 1, Q("46.5 mm")))
sketch7.addConstraint(Sketcher.Constraint("DistanceX", -1, 1, 2, 3, Q("35.2 mm")))
sketch7.addConstraint(Sketcher.Constraint("DistanceX", -1, 1, 4, 3, Q("28.7 mm")))
sketch7.addConstraint(Sketcher.Constraint("DistanceX", -1, 1, 6, 3, Q("22.2 mm")))
sketch7.addConstraint(Sketcher.Constraint("DistanceX", -1, 1, 8, 3, Q("15.7 mm")))
sketch7.addConstraint(Sketcher.Constraint("DistanceX", -1, 1, 10, 3, Q("9.2 mm")))
sketch7.addConstraint(Sketcher.Constraint("DistanceX", -1, 1, 12, 3, Q("2.7 mm")))
sketch7.addConstraint(Sketcher.Constraint("DistanceX", 14, 3, -1, 1, Q("3.8 mm")))
sketch7.addConstraint(Sketcher.Constraint("DistanceY", 17, 3, -1, 1, Q("33.5 mm")))
sketch7.addConstraint(Sketcher.Constraint("DistanceY", 33, 3, -1, 1, Q("20.5 mm")))
sketch7.addConstraint(Sketcher.Constraint("DistanceY", 49, 3, -1, 1, Q("7.5 mm")))
sketch7.addConstraint(Sketcher.Constraint("DistanceX", -1, 1, 1, 3, Q("38.45 mm")))
sketch7.addConstraint(Sketcher.Constraint("DistanceX", -1, 1, 3, 3, Q("31.95 mm")))
sketch7.addConstraint(Sketcher.Constraint("DistanceX", -1, 1, 5, 3, Q("25.45 mm")))
sketch7.addConstraint(Sketcher.Constraint("DistanceX", -1, 1, 7, 3, Q("18.95 mm")))
sketch7.addConstraint(Sketcher.Constraint("DistanceX", -1, 1, 9, 3, Q("12.45 mm")))
sketch7.addConstraint(Sketcher.Constraint("DistanceX", -1, 1, 11, 3, Q("5.95 mm")))
sketch7.addConstraint(Sketcher.Constraint("DistanceX", 13, 3, -1, 1, Q("0.55 mm")))
sketch7.addConstraint(Sketcher.Constraint("DistanceX", 15, 3, -1, 1, Q("7.05 mm")))
pocket4 = body2.newObject("PartDesign::Pocket", "Pocket003")
pocket4.Profile = sketch7
pocket4.Length = 0.44
pocket4.Reversed = True

# Sketch on YZ plane
sketch8 = body2.newObject("Sketcher::SketchObject", "Sketch007")
sketch8.AttachmentSupport = (doc.getObject("YZ_Plane001"), [""])
sketch8.MapMode = "FlatFace"
sketch8.AttachmentOffset = App.Placement(Vector(0, 0, -50), App.Rotation())
sketch8.addGeometry(Part.Circle(Vector(6.8, -46.5, 0), Vector(0, 0, 1), 2.15), False)
sketch8.addGeometry(Part.Circle(Vector(10.05, -40, 0), Vector(0, 0, 1), 2.15), False)
sketch8.addGeometry(Part.Circle(Vector(6.8, -33.5, 0), Vector(0, 0, 1), 2.15), False)
sketch8.addGeometry(Part.Circle(Vector(10.05, -27, 0), Vector(0, 0, 1), 2.15), False)
sketch8.addGeometry(Part.Circle(Vector(6.8, -20.5, 0), Vector(0, 0, 1), 2.15), False)
sketch8.addGeometry(Part.Circle(Vector(10.05, -14, 0), Vector(0, 0, 1), 2.15), False)
sketch8.addGeometry(Part.Circle(Vector(6.8, -7.5, 0), Vector(0, 0, 1), 2.15), False)
sketch8.addGeometry(Part.Circle(Vector(10.05, -1, 0), Vector(0, 0, 1), 2.15), False)
sketch8.addGeometry(Part.Circle(Vector(13.3, -33.5, 0), Vector(0, 0, 1), 2.15), False)
sketch8.addGeometry(Part.Circle(Vector(16.55, -27, 0), Vector(0, 0, 1), 2.15), False)
sketch8.addGeometry(Part.Circle(Vector(13.3, -20.5, 0), Vector(0, 0, 1), 2.15), False)
sketch8.addGeometry(Part.Circle(Vector(16.55, -14, 0), Vector(0, 0, 1), 2.15), False)
sketch8.addGeometry(Part.Circle(Vector(13.3, -7.5, 0), Vector(0, 0, 1), 2.15), False)
sketch8.addGeometry(Part.Circle(Vector(16.55, -1, 0), Vector(0, 0, 1), 2.15), False)
sketch8.addGeometry(Part.Circle(Vector(19.8, -33.5, 0), Vector(0, 0, 1), 2.15), False)
sketch8.addGeometry(Part.Circle(Vector(23.05, -27, 0), Vector(0, 0, 1), 2.15), False)
sketch8.addGeometry(Part.Circle(Vector(19.8, -20.5, 0), Vector(0, 0, 1), 2.15), False)
sketch8.addGeometry(Part.Circle(Vector(23.05, -14, 0), Vector(0, 0, 1), 2.15), False)
sketch8.addGeometry(Part.Circle(Vector(19.8, -7.5, 0), Vector(0, 0, 1), 2.15), False)
sketch8.addGeometry(Part.Circle(Vector(23.05, -1, 0), Vector(0, 0, 1), 2.15), False)
sketch8.addGeometry(Part.Circle(Vector(26.3, -33.5, 0), Vector(0, 0, 1), 2.15), False)
sketch8.addGeometry(Part.Circle(Vector(29.55, -27, 0), Vector(0, 0, 1), 2.15), False)
sketch8.addGeometry(Part.Circle(Vector(26.3, -20.5, 0), Vector(0, 0, 1), 2.15), False)
sketch8.addGeometry(Part.Circle(Vector(29.55, -14, 0), Vector(0, 0, 1), 2.15), False)
sketch8.addGeometry(Part.Circle(Vector(26.3, -7.5, 0), Vector(0, 0, 1), 2.15), False)
sketch8.addGeometry(Part.Circle(Vector(29.55, -1, 0), Vector(0, 0, 1), 2.15), False)
sketch8.addGeometry(Part.Circle(Vector(32.8, -33.5, 0), Vector(0, 0, 1), 2.15), False)
sketch8.addGeometry(Part.Circle(Vector(36.05, -27, 0), Vector(0, 0, 1), 2.15), False)
sketch8.addGeometry(Part.Circle(Vector(32.8, -20.5, 0), Vector(0, 0, 1), 2.15), False)
sketch8.addGeometry(Part.Circle(Vector(36.05, -14, 0), Vector(0, 0, 1), 2.15), False)
sketch8.addGeometry(Part.Circle(Vector(32.8, -7.5, 0), Vector(0, 0, 1), 2.15), False)
sketch8.addGeometry(Part.Circle(Vector(36.05, -1, 0), Vector(0, 0, 1), 2.15), False)
sketch8.addGeometry(Part.Circle(Vector(13.3, -46.5, 0), Vector(0, 0, 1), 2.15), False)
sketch8.addGeometry(Part.Circle(Vector(16.55, -40, 0), Vector(0, 0, 1), 2.15), False)
sketch8.addGeometry(Part.Circle(Vector(19.8, -46.5, 0), Vector(0, 0, 1), 2.15), False)
sketch8.addGeometry(Part.Circle(Vector(23.05, -40, 0), Vector(0, 0, 1), 2.15), False)
sketch8.addGeometry(Part.Circle(Vector(26.3, -46.5, 0), Vector(0, 0, 1), 2.15), False)
sketch8.addGeometry(Part.Circle(Vector(29.55, -40, 0), Vector(0, 0, 1), 2.15), False)
sketch8.addGeometry(Part.Circle(Vector(32.8, -46.5, 0), Vector(0, 0, 1), 2.15), False)
sketch8.addGeometry(Part.Circle(Vector(36.05, -40, 0), Vector(0, 0, 1), 2.15), False)
sketch8.addConstraint(Sketcher.Constraint("Equal", 0, 1))
sketch8.addConstraint(Sketcher.Constraint("Equal", 1, 2))
sketch8.addConstraint(Sketcher.Constraint("Equal", 2, 3))
sketch8.addConstraint(Sketcher.Constraint("Equal", 3, 4))
sketch8.addConstraint(Sketcher.Constraint("Equal", 4, 5))
sketch8.addConstraint(Sketcher.Constraint("Equal", 5, 6))
sketch8.addConstraint(Sketcher.Constraint("Equal", 6, 7))
sketch8.addConstraint(Sketcher.Constraint("Equal", 7, 8))
sketch8.addConstraint(Sketcher.Constraint("Equal", 8, 9))
sketch8.addConstraint(Sketcher.Constraint("Equal", 9, 10))
sketch8.addConstraint(Sketcher.Constraint("Equal", 10, 11))
sketch8.addConstraint(Sketcher.Constraint("Equal", 11, 12))
sketch8.addConstraint(Sketcher.Constraint("Equal", 12, 13))
sketch8.addConstraint(Sketcher.Constraint("Equal", 13, 14))
sketch8.addConstraint(Sketcher.Constraint("Equal", 14, 15))
sketch8.addConstraint(Sketcher.Constraint("Equal", 15, 16))
sketch8.addConstraint(Sketcher.Constraint("Equal", 16, 17))
sketch8.addConstraint(Sketcher.Constraint("Equal", 17, 18))
sketch8.addConstraint(Sketcher.Constraint("Equal", 18, 19))
sketch8.addConstraint(Sketcher.Constraint("Equal", 19, 20))
sketch8.addConstraint(Sketcher.Constraint("Equal", 20, 21))
sketch8.addConstraint(Sketcher.Constraint("Equal", 21, 22))
sketch8.addConstraint(Sketcher.Constraint("Equal", 22, 23))
sketch8.addConstraint(Sketcher.Constraint("Equal", 23, 24))
sketch8.addConstraint(Sketcher.Constraint("Equal", 24, 25))
sketch8.addConstraint(Sketcher.Constraint("Equal", 25, 26))
sketch8.addConstraint(Sketcher.Constraint("Equal", 26, 27))
sketch8.addConstraint(Sketcher.Constraint("Equal", 27, 28))
sketch8.addConstraint(Sketcher.Constraint("Equal", 28, 29))
sketch8.addConstraint(Sketcher.Constraint("Equal", 29, 30))
sketch8.addConstraint(Sketcher.Constraint("Equal", 30, 31))
sketch8.addConstraint(Sketcher.Constraint("Equal", 31, 32))
sketch8.addConstraint(Sketcher.Constraint("Equal", 32, 33))
sketch8.addConstraint(Sketcher.Constraint("Equal", 33, 34))
sketch8.addConstraint(Sketcher.Constraint("Equal", 34, 35))
sketch8.addConstraint(Sketcher.Constraint("Equal", 35, 36))
sketch8.addConstraint(Sketcher.Constraint("Equal", 36, 37))
sketch8.addConstraint(Sketcher.Constraint("Equal", 37, 38))
sketch8.addConstraint(Sketcher.Constraint("Equal", 38, 39))
sketch8.addConstraint(Sketcher.Constraint("Horizontal", 2, 3, 8, 3))
sketch8.addConstraint(Sketcher.Constraint("Horizontal", 3, 3, 9, 3))
sketch8.addConstraint(Sketcher.Constraint("Horizontal", 4, 3, 10, 3))
sketch8.addConstraint(Sketcher.Constraint("Horizontal", 5, 3, 11, 3))
sketch8.addConstraint(Sketcher.Constraint("Horizontal", 6, 3, 12, 3))
sketch8.addConstraint(Sketcher.Constraint("Horizontal", 7, 3, 13, 3))
sketch8.addConstraint(Sketcher.Constraint("Horizontal", 8, 3, 14, 3))
sketch8.addConstraint(Sketcher.Constraint("Horizontal", 9, 3, 15, 3))
sketch8.addConstraint(Sketcher.Constraint("Horizontal", 10, 3, 16, 3))
sketch8.addConstraint(Sketcher.Constraint("Horizontal", 11, 3, 17, 3))
sketch8.addConstraint(Sketcher.Constraint("Horizontal", 12, 3, 18, 3))
sketch8.addConstraint(Sketcher.Constraint("Horizontal", 13, 3, 19, 3))
sketch8.addConstraint(Sketcher.Constraint("Horizontal", 14, 3, 20, 3))
sketch8.addConstraint(Sketcher.Constraint("Horizontal", 15, 3, 21, 3))
sketch8.addConstraint(Sketcher.Constraint("Horizontal", 16, 3, 22, 3))
sketch8.addConstraint(Sketcher.Constraint("Horizontal", 17, 3, 23, 3))
sketch8.addConstraint(Sketcher.Constraint("Horizontal", 18, 3, 24, 3))
sketch8.addConstraint(Sketcher.Constraint("Horizontal", 19, 3, 25, 3))
sketch8.addConstraint(Sketcher.Constraint("Horizontal", 20, 3, 26, 3))
sketch8.addConstraint(Sketcher.Constraint("Horizontal", 21, 3, 27, 3))
sketch8.addConstraint(Sketcher.Constraint("Horizontal", 22, 3, 28, 3))
sketch8.addConstraint(Sketcher.Constraint("Horizontal", 23, 3, 29, 3))
sketch8.addConstraint(Sketcher.Constraint("Horizontal", 24, 3, 30, 3))
sketch8.addConstraint(Sketcher.Constraint("Horizontal", 25, 3, 31, 3))
sketch8.addConstraint(Sketcher.Constraint("Horizontal", 0, 3, 32, 3))
sketch8.addConstraint(Sketcher.Constraint("Horizontal", 1, 3, 33, 3))
sketch8.addConstraint(Sketcher.Constraint("Horizontal", 32, 3, 34, 3))
sketch8.addConstraint(Sketcher.Constraint("Horizontal", 33, 3, 35, 3))
sketch8.addConstraint(Sketcher.Constraint("Horizontal", 34, 3, 36, 3))
sketch8.addConstraint(Sketcher.Constraint("Horizontal", 35, 3, 37, 3))
sketch8.addConstraint(Sketcher.Constraint("Horizontal", 36, 3, 38, 3))
sketch8.addConstraint(Sketcher.Constraint("Horizontal", 37, 3, 39, 3))
sketch8.addConstraint(Sketcher.Constraint("Vertical", 0, 3, 2, 3))
sketch8.addConstraint(Sketcher.Constraint("Vertical", 1, 3, 3, 3))
sketch8.addConstraint(Sketcher.Constraint("Vertical", 2, 3, 4, 3))
sketch8.addConstraint(Sketcher.Constraint("Vertical", 3, 3, 5, 3))
sketch8.addConstraint(Sketcher.Constraint("Vertical", 4, 3, 6, 3))
sketch8.addConstraint(Sketcher.Constraint("Vertical", 5, 3, 7, 3))
sketch8.addConstraint(Sketcher.Constraint("Vertical", 8, 3, 10, 3))
sketch8.addConstraint(Sketcher.Constraint("Vertical", 9, 3, 11, 3))
sketch8.addConstraint(Sketcher.Constraint("Vertical", 10, 3, 12, 3))
sketch8.addConstraint(Sketcher.Constraint("Vertical", 11, 3, 13, 3))
sketch8.addConstraint(Sketcher.Constraint("Vertical", 14, 3, 16, 3))
sketch8.addConstraint(Sketcher.Constraint("Vertical", 15, 3, 17, 3))
sketch8.addConstraint(Sketcher.Constraint("Vertical", 16, 3, 18, 3))
sketch8.addConstraint(Sketcher.Constraint("Vertical", 17, 3, 19, 3))
sketch8.addConstraint(Sketcher.Constraint("Vertical", 20, 3, 22, 3))
sketch8.addConstraint(Sketcher.Constraint("Vertical", 21, 3, 23, 3))
sketch8.addConstraint(Sketcher.Constraint("Vertical", 22, 3, 24, 3))
sketch8.addConstraint(Sketcher.Constraint("Vertical", 23, 3, 25, 3))
sketch8.addConstraint(Sketcher.Constraint("Vertical", 26, 3, 28, 3))
sketch8.addConstraint(Sketcher.Constraint("Vertical", 27, 3, 29, 3))
sketch8.addConstraint(Sketcher.Constraint("Vertical", 28, 3, 30, 3))
sketch8.addConstraint(Sketcher.Constraint("Vertical", 29, 3, 31, 3))
sketch8.addConstraint(Sketcher.Constraint("Vertical", 12, 3, 32, 3))
sketch8.addConstraint(Sketcher.Constraint("Vertical", 13, 3, 33, 3))
sketch8.addConstraint(Sketcher.Constraint("Vertical", 18, 3, 34, 3))
sketch8.addConstraint(Sketcher.Constraint("Vertical", 19, 3, 35, 3))
sketch8.addConstraint(Sketcher.Constraint("Vertical", 24, 3, 36, 3))
sketch8.addConstraint(Sketcher.Constraint("Vertical", 25, 3, 37, 3))
sketch8.addConstraint(Sketcher.Constraint("Vertical", 30, 3, 38, 3))
sketch8.addConstraint(Sketcher.Constraint("Vertical", 31, 3, 39, 3))
sketch8.addConstraint(Sketcher.Constraint("Diameter", 0, Q("4.3 mm")))
sketch8.addConstraint(Sketcher.Constraint("DistanceY", 1, 3, -1, 1, Q("40 mm")))
sketch8.addConstraint(Sketcher.Constraint("DistanceY", 3, 3, -1, 1, Q("27 mm")))
sketch8.addConstraint(Sketcher.Constraint("DistanceY", 5, 3, -1, 1, Q("14 mm")))
sketch8.addConstraint(Sketcher.Constraint("DistanceY", 7, 3, -1, 1, Q("1 mm")))
sketch8.addConstraint(Sketcher.Constraint("DistanceY", 0, 3, 2, 3, Q("13 mm")))
sketch8.addConstraint(Sketcher.Constraint("DistanceY", 2, 3, 4, 3, Q("13 mm")))
sketch8.addConstraint(Sketcher.Constraint("DistanceY", 4, 3, 6, 3, Q("13 mm")))
sketch8.addConstraint(Sketcher.Constraint("DistanceX", 2, 3, 14, 3, Q("13 mm")))
sketch8.addConstraint(Sketcher.Constraint("DistanceX", 3, 3, 15, 3, Q("13 mm")))
sketch8.addConstraint(Sketcher.Constraint("DistanceX", 8, 3, 20, 3, Q("13 mm")))
sketch8.addConstraint(Sketcher.Constraint("DistanceX", 9, 3, 21, 3, Q("13 mm")))
sketch8.addConstraint(Sketcher.Constraint("DistanceX", 14, 3, 26, 3, Q("13 mm")))
sketch8.addConstraint(Sketcher.Constraint("DistanceX", 15, 3, 27, 3, Q("13 mm")))
sketch8.addConstraint(Sketcher.Constraint("DistanceX", -1, 1, 0, 3, Q("6.8 mm")))
sketch8.addConstraint(Sketcher.Constraint("DistanceY", 0, 3, -1, 1, Q("46.5 mm")))
sketch8.addConstraint(Sketcher.Constraint("DistanceX", -1, 1, 8, 3, Q("13.3 mm")))
sketch8.addConstraint(Sketcher.Constraint("DistanceX", 3, 3, 9, 3, Q("6.5 mm")))
sketch8.addConstraint(Sketcher.Constraint("DistanceX", -1, 1, 1, 3, Q("10.05 mm")))
pocket5 = body2.newObject("PartDesign::Pocket", "Pocket004")
pocket5.Profile = sketch8
pocket5.Length = 0.44
pocket5.Reversed = True

doc.recompute()
